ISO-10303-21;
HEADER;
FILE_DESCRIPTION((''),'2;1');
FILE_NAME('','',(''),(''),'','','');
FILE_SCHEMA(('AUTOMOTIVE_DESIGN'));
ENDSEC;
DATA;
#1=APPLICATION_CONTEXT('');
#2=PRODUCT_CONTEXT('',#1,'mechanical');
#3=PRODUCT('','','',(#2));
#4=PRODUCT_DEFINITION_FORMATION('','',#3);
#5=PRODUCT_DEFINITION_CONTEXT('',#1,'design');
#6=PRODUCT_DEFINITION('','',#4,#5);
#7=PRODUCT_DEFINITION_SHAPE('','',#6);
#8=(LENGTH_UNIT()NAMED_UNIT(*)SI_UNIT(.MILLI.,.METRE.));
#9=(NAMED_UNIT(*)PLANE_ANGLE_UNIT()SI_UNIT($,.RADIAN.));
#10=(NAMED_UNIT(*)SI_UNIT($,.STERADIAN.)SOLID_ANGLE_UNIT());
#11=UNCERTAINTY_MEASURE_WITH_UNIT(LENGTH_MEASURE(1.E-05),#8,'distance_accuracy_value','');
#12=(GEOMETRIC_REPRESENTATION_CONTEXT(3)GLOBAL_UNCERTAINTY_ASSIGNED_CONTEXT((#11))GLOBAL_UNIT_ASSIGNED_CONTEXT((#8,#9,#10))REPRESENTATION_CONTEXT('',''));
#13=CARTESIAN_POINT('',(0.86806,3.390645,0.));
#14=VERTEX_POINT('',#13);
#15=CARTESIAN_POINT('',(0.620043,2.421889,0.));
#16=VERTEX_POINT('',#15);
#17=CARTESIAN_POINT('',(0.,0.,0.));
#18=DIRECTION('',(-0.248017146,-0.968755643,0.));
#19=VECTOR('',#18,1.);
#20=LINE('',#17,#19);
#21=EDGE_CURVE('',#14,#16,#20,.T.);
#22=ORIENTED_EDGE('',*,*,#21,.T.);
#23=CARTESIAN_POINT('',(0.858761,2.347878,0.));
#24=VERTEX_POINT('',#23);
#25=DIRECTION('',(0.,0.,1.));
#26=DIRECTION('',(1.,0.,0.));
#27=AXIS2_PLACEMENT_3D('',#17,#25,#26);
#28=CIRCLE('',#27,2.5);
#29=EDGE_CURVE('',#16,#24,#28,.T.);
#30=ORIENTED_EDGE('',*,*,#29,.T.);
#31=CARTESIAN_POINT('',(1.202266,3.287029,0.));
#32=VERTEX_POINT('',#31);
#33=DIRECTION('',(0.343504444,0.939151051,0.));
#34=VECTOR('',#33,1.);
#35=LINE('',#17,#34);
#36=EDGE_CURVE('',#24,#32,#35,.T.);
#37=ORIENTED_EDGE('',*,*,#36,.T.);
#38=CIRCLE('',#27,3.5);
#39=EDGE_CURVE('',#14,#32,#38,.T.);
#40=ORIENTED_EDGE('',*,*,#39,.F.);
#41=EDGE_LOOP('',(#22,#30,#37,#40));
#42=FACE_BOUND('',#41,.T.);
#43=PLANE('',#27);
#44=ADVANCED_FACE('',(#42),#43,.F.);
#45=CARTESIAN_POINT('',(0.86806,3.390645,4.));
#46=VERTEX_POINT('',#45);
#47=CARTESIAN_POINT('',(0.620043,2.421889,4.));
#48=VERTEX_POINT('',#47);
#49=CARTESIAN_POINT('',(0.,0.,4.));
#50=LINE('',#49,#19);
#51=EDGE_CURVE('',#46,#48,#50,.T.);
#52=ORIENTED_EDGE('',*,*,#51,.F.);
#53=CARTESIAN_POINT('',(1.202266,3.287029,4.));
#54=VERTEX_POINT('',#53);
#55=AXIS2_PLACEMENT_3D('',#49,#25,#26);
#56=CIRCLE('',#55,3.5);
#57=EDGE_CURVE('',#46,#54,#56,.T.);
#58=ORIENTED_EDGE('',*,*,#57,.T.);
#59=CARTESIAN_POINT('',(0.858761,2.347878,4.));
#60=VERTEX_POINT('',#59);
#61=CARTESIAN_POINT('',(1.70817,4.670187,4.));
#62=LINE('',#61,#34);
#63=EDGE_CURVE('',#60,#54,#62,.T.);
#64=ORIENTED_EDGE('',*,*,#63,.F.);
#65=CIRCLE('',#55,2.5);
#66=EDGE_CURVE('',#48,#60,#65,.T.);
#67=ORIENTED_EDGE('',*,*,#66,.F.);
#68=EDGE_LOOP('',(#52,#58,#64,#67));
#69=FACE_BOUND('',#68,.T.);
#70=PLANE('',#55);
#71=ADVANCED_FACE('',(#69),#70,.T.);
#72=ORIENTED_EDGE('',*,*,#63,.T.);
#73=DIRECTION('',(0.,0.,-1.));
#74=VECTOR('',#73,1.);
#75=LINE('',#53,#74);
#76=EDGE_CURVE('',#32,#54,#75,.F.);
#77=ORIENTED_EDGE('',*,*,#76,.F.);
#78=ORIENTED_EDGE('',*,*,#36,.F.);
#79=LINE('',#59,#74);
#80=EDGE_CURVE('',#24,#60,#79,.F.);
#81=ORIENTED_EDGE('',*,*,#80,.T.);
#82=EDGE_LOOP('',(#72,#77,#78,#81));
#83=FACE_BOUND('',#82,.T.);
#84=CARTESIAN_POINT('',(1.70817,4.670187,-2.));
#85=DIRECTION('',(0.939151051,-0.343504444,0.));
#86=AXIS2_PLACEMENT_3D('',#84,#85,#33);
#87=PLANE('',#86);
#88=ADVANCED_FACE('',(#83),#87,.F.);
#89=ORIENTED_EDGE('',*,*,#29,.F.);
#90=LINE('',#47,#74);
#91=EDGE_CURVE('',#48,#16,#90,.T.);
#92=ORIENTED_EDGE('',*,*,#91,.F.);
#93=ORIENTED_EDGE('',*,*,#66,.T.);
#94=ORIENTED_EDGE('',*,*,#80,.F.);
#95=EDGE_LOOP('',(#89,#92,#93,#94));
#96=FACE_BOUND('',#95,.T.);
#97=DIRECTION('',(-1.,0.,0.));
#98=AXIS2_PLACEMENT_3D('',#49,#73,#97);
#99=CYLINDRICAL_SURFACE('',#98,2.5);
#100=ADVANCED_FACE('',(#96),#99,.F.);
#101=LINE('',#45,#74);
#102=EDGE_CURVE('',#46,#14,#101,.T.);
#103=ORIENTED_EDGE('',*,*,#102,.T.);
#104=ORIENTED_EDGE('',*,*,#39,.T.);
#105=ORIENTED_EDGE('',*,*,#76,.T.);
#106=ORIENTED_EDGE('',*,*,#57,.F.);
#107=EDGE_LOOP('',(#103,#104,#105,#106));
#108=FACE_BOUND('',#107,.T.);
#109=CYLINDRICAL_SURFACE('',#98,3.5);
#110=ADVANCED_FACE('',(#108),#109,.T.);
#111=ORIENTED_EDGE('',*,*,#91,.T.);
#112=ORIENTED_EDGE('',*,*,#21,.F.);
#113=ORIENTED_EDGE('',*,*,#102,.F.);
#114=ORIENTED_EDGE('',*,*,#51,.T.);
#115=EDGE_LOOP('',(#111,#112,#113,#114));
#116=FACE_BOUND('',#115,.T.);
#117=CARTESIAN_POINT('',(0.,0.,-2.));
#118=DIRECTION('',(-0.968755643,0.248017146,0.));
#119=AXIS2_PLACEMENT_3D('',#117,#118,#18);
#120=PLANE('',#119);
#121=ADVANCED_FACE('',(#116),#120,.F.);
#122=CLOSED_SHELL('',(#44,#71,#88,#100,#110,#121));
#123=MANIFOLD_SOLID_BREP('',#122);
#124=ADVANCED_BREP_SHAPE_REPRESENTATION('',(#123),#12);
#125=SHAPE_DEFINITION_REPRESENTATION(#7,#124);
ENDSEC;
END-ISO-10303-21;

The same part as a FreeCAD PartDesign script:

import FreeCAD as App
import Part
import Sketcher
Q = App.Units.Quantity

doc = App.newDocument("Part")
params = doc.addObject("Spreadsheet::Sheet", "Params")
for row, (alias, value) in enumerate([
    ("sketch1_diameter", "7 mm"),
    ("sketch1_diameter2", "5 mm"),
    ("pad1_length", "4 mm"),
    ("pocket1_length", "6 mm"),
], start=1):
    params.set(f"A{row}", alias)
    params.set(f"B{row}", "=" + value)
    params.setAlias(f"B{row}", alias)

body = doc.addObject("PartDesign::Body", "Body")

# Sketch on XY plane
sketch1 = doc.addObject("Sketcher::SketchObject", "Sketch")
body.addObject(sketch1)
sketch1.AttachmentSupport = (doc.XY_Plane, [""])
sketch1.MapMode = "FlatFace"
sketch1.addGeometry([
    Part.Circle(App.Vector(0, 0, 0), App.Vector(0, 0, 1), 3.5),
    Part.Circle(App.Vector(0, 0, 0), App.Vector(0, 0, 1), 2.5),
], False)
sketch1.addConstraint([
    Sketcher.Constraint("Coincident", 0, 3, -1, 1),
    Sketcher.Constraint("Coincident", 1, 3, -1, 1),
    Sketcher.Constraint("Diameter", 0, Q("7 mm")),
    Sketcher.Constraint("Diameter", 1, Q("5 mm")),
])
sketch1.setExpression("Constraints[2]", "Params.sketch1_diameter")
sketch1.setExpression("Constraints[3]", "Params.sketch1_diameter2")
pad1 = doc.addObject("PartDesign::Pad", "Pad")
body.addObject(pad1)
pad1.Profile = sketch1
pad1.setExpression("Length", "Params.pad1_length")

# Sketch on XY plane
sketch2 = doc.addObject("Sketcher::SketchObject", "Sketch001")
body.addObject(sketch2)
sketch2.AttachmentSupport = (doc.XY_Plane, [""])
sketch2.MapMode = "FlatFace"
sketch2.AttachmentOffset = App.Placement(App.Vector(0, 0, 4), App.Rotation())
sketch2.addGeometry([
    Part.LineSegment(App.Vector(1.2, 4.7, 0), App.Vector(0, 0, 0)),
    Part.LineSegment(App.Vector(0, 0, 0), App.Vector(1.7, 4.7, 0)),
    Part.LineSegment(App.Vector(1.7, 4.7, 0), App.Vector(1.2, 4.7, 0)),
], False)
sketch2.addConstraint([
    Sketcher.Constraint("Coincident", 0, 2, 1, 1),
    Sketcher.Constraint("Coincident", 1, 2, 2, 1),
    Sketcher.Constraint("Coincident", 2, 2, 0, 1),
    Sketcher.Constraint("Horizontal", 2),
    Sketcher.Constraint("Coincident", 0, 2, -1, 1),
    Sketcher.Constraint("Distance", 0, Q("4.82081 mm")),
    Sketcher.Constraint("DistanceX", 2, 2, 2, 1, Q("0.512527 mm")),
    Sketcher.Constraint("DistanceX", -1, 1, 1, 2, Q("1.70817 mm")),
])
pocket1 = doc.addObject("PartDesign::Pocket", "Pocket")
body.addObject(pocket1)
pocket1.Profile = sketch2
pocket1.setExpression("Length", "Params.pocket1_length")

doc.recompute()
